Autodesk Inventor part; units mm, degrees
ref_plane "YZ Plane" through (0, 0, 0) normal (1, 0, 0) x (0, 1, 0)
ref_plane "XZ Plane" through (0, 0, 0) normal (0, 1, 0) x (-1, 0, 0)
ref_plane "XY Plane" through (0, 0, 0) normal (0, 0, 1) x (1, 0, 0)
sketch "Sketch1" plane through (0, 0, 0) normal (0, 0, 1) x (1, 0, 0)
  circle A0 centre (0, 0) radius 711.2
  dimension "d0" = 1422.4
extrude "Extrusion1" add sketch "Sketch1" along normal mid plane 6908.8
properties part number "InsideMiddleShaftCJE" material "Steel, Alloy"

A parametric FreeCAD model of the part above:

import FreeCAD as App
import Part
import Sketcher

V = App.Vector
Q = App.Units.Quantity

doc = App.newDocument("Part")
body = doc.addObject("PartDesign::Body", "Body")

# Sketch on XY plane
sketch1 = body.newObject("Sketcher::SketchObject", "Sketch")
sketch1.AttachmentSupport = (doc.getObject("XY_Plane"), [""])
sketch1.MapMode = "FlatFace"
sketch1.addGeometry(Part.Circle(V(0, 0, 0), V(0, 0, 1), 711), False)
sketch1.addConstraint(Sketcher.Constraint("Coincident", 0, 3, -1, 1))
sketch1.addConstraint(Sketcher.Constraint("Diameter", 0, Q("56 in")))
pad1 = body.newObject("PartDesign::Pad", "Pad")
pad1.Profile = sketch1
pad1.Length = Q("272 in")
pad1.Midplane = True

doc.recompute()
